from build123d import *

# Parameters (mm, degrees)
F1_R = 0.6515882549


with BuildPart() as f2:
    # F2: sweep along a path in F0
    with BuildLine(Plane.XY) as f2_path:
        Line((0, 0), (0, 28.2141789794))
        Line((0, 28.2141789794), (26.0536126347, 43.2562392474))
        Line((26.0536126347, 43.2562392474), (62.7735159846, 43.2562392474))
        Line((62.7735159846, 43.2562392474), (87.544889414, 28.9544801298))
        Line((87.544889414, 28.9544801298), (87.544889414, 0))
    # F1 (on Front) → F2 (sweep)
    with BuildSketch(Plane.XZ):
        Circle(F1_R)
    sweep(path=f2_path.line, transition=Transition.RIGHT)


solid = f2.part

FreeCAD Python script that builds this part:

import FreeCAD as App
import Part
import Sketcher

V = App.Vector
Q = App.Units.Quantity

doc = App.newDocument("Part")
body = doc.addObject("PartDesign::Body", "Body")

# Sketch on XZ plane
sketch1 = body.newObject("Sketcher::SketchObject", "Sketch")
sketch1.AttachmentSupport = (doc.getObject("XZ_Plane"), [""])
sketch1.MapMode = "FlatFace"
sketch1.addGeometry(Part.Circle(V(0, 0, 0), V(0, 0, 1), 0.7), False)
sketch1.addConstraint([
    Sketcher.Constraint("Coincident", 0, 3, -1, 1),
    Sketcher.Constraint("Diameter", 0, Q("1.303177 mm")),
])

# Sketch on XY plane
sketch2 = body.newObject("Sketcher::SketchObject", "Sketch001")
sketch2.AttachmentSupport = (doc.getObject("XY_Plane"), [""])
sketch2.MapMode = "FlatFace"
sketch2.addGeometry([
    Part.LineSegment(V(0, 0, 0), V(0, 28, 0)),  # 0
    Part.LineSegment(V(0, 28, 0), V(26, 43, 0)),  # 1
    Part.LineSegment(V(26, 43, 0), V(63, 43, 0)),  # 2
    Part.LineSegment(V(63, 43, 0), V(88, 29, 0)),  # 3
    Part.LineSegment(V(88, 29, 0), V(88, 0, 0)),  # 4
], False)
sketch2.addConstraint([
    Sketcher.Constraint("Coincident", 0, 2, 1, 1),
    Sketcher.Constraint("Coincident", 1, 2, 2, 1),
    Sketcher.Constraint("Coincident", 2, 2, 3, 1),
    Sketcher.Constraint("Coincident", 3, 2, 4, 1),
    Sketcher.Constraint("Vertical", 0),
    Sketcher.Constraint("Horizontal", 2),
    Sketcher.Constraint("Vertical", 4),
    Sketcher.Constraint("Coincident", 0, 1, -1, 1),
    Sketcher.Constraint("PointOnObject", 4, 2, -1),
    Sketcher.Constraint("Angle", 1, Q("30 deg")),
    Sketcher.Constraint("Angle", 3, Q("-30 deg")),
    Sketcher.Constraint("DistanceY", 0, 1, 0, 2, Q("28.214179 mm")),
    Sketcher.Constraint("DistanceY", 4, 2, 4, 1, Q("28.95448 mm")),
    Sketcher.Constraint("Distance", 1, Q("30.084121 mm")),
    Sketcher.Constraint("DistanceX", 2, 1, 2, 2, Q("36.719903 mm")),
])
doc.recompute()

additivepipe = body.newObject("PartDesign::AdditivePipe", "AdditivePipe")
additivepipe.Profile = sketch1
additivepipe.Spine = (sketch2, ["Edge1", "Edge2", "Edge3", "Edge4", "Edge5"])
additivepipe.Transition = "Right corner"

doc.recompute()
